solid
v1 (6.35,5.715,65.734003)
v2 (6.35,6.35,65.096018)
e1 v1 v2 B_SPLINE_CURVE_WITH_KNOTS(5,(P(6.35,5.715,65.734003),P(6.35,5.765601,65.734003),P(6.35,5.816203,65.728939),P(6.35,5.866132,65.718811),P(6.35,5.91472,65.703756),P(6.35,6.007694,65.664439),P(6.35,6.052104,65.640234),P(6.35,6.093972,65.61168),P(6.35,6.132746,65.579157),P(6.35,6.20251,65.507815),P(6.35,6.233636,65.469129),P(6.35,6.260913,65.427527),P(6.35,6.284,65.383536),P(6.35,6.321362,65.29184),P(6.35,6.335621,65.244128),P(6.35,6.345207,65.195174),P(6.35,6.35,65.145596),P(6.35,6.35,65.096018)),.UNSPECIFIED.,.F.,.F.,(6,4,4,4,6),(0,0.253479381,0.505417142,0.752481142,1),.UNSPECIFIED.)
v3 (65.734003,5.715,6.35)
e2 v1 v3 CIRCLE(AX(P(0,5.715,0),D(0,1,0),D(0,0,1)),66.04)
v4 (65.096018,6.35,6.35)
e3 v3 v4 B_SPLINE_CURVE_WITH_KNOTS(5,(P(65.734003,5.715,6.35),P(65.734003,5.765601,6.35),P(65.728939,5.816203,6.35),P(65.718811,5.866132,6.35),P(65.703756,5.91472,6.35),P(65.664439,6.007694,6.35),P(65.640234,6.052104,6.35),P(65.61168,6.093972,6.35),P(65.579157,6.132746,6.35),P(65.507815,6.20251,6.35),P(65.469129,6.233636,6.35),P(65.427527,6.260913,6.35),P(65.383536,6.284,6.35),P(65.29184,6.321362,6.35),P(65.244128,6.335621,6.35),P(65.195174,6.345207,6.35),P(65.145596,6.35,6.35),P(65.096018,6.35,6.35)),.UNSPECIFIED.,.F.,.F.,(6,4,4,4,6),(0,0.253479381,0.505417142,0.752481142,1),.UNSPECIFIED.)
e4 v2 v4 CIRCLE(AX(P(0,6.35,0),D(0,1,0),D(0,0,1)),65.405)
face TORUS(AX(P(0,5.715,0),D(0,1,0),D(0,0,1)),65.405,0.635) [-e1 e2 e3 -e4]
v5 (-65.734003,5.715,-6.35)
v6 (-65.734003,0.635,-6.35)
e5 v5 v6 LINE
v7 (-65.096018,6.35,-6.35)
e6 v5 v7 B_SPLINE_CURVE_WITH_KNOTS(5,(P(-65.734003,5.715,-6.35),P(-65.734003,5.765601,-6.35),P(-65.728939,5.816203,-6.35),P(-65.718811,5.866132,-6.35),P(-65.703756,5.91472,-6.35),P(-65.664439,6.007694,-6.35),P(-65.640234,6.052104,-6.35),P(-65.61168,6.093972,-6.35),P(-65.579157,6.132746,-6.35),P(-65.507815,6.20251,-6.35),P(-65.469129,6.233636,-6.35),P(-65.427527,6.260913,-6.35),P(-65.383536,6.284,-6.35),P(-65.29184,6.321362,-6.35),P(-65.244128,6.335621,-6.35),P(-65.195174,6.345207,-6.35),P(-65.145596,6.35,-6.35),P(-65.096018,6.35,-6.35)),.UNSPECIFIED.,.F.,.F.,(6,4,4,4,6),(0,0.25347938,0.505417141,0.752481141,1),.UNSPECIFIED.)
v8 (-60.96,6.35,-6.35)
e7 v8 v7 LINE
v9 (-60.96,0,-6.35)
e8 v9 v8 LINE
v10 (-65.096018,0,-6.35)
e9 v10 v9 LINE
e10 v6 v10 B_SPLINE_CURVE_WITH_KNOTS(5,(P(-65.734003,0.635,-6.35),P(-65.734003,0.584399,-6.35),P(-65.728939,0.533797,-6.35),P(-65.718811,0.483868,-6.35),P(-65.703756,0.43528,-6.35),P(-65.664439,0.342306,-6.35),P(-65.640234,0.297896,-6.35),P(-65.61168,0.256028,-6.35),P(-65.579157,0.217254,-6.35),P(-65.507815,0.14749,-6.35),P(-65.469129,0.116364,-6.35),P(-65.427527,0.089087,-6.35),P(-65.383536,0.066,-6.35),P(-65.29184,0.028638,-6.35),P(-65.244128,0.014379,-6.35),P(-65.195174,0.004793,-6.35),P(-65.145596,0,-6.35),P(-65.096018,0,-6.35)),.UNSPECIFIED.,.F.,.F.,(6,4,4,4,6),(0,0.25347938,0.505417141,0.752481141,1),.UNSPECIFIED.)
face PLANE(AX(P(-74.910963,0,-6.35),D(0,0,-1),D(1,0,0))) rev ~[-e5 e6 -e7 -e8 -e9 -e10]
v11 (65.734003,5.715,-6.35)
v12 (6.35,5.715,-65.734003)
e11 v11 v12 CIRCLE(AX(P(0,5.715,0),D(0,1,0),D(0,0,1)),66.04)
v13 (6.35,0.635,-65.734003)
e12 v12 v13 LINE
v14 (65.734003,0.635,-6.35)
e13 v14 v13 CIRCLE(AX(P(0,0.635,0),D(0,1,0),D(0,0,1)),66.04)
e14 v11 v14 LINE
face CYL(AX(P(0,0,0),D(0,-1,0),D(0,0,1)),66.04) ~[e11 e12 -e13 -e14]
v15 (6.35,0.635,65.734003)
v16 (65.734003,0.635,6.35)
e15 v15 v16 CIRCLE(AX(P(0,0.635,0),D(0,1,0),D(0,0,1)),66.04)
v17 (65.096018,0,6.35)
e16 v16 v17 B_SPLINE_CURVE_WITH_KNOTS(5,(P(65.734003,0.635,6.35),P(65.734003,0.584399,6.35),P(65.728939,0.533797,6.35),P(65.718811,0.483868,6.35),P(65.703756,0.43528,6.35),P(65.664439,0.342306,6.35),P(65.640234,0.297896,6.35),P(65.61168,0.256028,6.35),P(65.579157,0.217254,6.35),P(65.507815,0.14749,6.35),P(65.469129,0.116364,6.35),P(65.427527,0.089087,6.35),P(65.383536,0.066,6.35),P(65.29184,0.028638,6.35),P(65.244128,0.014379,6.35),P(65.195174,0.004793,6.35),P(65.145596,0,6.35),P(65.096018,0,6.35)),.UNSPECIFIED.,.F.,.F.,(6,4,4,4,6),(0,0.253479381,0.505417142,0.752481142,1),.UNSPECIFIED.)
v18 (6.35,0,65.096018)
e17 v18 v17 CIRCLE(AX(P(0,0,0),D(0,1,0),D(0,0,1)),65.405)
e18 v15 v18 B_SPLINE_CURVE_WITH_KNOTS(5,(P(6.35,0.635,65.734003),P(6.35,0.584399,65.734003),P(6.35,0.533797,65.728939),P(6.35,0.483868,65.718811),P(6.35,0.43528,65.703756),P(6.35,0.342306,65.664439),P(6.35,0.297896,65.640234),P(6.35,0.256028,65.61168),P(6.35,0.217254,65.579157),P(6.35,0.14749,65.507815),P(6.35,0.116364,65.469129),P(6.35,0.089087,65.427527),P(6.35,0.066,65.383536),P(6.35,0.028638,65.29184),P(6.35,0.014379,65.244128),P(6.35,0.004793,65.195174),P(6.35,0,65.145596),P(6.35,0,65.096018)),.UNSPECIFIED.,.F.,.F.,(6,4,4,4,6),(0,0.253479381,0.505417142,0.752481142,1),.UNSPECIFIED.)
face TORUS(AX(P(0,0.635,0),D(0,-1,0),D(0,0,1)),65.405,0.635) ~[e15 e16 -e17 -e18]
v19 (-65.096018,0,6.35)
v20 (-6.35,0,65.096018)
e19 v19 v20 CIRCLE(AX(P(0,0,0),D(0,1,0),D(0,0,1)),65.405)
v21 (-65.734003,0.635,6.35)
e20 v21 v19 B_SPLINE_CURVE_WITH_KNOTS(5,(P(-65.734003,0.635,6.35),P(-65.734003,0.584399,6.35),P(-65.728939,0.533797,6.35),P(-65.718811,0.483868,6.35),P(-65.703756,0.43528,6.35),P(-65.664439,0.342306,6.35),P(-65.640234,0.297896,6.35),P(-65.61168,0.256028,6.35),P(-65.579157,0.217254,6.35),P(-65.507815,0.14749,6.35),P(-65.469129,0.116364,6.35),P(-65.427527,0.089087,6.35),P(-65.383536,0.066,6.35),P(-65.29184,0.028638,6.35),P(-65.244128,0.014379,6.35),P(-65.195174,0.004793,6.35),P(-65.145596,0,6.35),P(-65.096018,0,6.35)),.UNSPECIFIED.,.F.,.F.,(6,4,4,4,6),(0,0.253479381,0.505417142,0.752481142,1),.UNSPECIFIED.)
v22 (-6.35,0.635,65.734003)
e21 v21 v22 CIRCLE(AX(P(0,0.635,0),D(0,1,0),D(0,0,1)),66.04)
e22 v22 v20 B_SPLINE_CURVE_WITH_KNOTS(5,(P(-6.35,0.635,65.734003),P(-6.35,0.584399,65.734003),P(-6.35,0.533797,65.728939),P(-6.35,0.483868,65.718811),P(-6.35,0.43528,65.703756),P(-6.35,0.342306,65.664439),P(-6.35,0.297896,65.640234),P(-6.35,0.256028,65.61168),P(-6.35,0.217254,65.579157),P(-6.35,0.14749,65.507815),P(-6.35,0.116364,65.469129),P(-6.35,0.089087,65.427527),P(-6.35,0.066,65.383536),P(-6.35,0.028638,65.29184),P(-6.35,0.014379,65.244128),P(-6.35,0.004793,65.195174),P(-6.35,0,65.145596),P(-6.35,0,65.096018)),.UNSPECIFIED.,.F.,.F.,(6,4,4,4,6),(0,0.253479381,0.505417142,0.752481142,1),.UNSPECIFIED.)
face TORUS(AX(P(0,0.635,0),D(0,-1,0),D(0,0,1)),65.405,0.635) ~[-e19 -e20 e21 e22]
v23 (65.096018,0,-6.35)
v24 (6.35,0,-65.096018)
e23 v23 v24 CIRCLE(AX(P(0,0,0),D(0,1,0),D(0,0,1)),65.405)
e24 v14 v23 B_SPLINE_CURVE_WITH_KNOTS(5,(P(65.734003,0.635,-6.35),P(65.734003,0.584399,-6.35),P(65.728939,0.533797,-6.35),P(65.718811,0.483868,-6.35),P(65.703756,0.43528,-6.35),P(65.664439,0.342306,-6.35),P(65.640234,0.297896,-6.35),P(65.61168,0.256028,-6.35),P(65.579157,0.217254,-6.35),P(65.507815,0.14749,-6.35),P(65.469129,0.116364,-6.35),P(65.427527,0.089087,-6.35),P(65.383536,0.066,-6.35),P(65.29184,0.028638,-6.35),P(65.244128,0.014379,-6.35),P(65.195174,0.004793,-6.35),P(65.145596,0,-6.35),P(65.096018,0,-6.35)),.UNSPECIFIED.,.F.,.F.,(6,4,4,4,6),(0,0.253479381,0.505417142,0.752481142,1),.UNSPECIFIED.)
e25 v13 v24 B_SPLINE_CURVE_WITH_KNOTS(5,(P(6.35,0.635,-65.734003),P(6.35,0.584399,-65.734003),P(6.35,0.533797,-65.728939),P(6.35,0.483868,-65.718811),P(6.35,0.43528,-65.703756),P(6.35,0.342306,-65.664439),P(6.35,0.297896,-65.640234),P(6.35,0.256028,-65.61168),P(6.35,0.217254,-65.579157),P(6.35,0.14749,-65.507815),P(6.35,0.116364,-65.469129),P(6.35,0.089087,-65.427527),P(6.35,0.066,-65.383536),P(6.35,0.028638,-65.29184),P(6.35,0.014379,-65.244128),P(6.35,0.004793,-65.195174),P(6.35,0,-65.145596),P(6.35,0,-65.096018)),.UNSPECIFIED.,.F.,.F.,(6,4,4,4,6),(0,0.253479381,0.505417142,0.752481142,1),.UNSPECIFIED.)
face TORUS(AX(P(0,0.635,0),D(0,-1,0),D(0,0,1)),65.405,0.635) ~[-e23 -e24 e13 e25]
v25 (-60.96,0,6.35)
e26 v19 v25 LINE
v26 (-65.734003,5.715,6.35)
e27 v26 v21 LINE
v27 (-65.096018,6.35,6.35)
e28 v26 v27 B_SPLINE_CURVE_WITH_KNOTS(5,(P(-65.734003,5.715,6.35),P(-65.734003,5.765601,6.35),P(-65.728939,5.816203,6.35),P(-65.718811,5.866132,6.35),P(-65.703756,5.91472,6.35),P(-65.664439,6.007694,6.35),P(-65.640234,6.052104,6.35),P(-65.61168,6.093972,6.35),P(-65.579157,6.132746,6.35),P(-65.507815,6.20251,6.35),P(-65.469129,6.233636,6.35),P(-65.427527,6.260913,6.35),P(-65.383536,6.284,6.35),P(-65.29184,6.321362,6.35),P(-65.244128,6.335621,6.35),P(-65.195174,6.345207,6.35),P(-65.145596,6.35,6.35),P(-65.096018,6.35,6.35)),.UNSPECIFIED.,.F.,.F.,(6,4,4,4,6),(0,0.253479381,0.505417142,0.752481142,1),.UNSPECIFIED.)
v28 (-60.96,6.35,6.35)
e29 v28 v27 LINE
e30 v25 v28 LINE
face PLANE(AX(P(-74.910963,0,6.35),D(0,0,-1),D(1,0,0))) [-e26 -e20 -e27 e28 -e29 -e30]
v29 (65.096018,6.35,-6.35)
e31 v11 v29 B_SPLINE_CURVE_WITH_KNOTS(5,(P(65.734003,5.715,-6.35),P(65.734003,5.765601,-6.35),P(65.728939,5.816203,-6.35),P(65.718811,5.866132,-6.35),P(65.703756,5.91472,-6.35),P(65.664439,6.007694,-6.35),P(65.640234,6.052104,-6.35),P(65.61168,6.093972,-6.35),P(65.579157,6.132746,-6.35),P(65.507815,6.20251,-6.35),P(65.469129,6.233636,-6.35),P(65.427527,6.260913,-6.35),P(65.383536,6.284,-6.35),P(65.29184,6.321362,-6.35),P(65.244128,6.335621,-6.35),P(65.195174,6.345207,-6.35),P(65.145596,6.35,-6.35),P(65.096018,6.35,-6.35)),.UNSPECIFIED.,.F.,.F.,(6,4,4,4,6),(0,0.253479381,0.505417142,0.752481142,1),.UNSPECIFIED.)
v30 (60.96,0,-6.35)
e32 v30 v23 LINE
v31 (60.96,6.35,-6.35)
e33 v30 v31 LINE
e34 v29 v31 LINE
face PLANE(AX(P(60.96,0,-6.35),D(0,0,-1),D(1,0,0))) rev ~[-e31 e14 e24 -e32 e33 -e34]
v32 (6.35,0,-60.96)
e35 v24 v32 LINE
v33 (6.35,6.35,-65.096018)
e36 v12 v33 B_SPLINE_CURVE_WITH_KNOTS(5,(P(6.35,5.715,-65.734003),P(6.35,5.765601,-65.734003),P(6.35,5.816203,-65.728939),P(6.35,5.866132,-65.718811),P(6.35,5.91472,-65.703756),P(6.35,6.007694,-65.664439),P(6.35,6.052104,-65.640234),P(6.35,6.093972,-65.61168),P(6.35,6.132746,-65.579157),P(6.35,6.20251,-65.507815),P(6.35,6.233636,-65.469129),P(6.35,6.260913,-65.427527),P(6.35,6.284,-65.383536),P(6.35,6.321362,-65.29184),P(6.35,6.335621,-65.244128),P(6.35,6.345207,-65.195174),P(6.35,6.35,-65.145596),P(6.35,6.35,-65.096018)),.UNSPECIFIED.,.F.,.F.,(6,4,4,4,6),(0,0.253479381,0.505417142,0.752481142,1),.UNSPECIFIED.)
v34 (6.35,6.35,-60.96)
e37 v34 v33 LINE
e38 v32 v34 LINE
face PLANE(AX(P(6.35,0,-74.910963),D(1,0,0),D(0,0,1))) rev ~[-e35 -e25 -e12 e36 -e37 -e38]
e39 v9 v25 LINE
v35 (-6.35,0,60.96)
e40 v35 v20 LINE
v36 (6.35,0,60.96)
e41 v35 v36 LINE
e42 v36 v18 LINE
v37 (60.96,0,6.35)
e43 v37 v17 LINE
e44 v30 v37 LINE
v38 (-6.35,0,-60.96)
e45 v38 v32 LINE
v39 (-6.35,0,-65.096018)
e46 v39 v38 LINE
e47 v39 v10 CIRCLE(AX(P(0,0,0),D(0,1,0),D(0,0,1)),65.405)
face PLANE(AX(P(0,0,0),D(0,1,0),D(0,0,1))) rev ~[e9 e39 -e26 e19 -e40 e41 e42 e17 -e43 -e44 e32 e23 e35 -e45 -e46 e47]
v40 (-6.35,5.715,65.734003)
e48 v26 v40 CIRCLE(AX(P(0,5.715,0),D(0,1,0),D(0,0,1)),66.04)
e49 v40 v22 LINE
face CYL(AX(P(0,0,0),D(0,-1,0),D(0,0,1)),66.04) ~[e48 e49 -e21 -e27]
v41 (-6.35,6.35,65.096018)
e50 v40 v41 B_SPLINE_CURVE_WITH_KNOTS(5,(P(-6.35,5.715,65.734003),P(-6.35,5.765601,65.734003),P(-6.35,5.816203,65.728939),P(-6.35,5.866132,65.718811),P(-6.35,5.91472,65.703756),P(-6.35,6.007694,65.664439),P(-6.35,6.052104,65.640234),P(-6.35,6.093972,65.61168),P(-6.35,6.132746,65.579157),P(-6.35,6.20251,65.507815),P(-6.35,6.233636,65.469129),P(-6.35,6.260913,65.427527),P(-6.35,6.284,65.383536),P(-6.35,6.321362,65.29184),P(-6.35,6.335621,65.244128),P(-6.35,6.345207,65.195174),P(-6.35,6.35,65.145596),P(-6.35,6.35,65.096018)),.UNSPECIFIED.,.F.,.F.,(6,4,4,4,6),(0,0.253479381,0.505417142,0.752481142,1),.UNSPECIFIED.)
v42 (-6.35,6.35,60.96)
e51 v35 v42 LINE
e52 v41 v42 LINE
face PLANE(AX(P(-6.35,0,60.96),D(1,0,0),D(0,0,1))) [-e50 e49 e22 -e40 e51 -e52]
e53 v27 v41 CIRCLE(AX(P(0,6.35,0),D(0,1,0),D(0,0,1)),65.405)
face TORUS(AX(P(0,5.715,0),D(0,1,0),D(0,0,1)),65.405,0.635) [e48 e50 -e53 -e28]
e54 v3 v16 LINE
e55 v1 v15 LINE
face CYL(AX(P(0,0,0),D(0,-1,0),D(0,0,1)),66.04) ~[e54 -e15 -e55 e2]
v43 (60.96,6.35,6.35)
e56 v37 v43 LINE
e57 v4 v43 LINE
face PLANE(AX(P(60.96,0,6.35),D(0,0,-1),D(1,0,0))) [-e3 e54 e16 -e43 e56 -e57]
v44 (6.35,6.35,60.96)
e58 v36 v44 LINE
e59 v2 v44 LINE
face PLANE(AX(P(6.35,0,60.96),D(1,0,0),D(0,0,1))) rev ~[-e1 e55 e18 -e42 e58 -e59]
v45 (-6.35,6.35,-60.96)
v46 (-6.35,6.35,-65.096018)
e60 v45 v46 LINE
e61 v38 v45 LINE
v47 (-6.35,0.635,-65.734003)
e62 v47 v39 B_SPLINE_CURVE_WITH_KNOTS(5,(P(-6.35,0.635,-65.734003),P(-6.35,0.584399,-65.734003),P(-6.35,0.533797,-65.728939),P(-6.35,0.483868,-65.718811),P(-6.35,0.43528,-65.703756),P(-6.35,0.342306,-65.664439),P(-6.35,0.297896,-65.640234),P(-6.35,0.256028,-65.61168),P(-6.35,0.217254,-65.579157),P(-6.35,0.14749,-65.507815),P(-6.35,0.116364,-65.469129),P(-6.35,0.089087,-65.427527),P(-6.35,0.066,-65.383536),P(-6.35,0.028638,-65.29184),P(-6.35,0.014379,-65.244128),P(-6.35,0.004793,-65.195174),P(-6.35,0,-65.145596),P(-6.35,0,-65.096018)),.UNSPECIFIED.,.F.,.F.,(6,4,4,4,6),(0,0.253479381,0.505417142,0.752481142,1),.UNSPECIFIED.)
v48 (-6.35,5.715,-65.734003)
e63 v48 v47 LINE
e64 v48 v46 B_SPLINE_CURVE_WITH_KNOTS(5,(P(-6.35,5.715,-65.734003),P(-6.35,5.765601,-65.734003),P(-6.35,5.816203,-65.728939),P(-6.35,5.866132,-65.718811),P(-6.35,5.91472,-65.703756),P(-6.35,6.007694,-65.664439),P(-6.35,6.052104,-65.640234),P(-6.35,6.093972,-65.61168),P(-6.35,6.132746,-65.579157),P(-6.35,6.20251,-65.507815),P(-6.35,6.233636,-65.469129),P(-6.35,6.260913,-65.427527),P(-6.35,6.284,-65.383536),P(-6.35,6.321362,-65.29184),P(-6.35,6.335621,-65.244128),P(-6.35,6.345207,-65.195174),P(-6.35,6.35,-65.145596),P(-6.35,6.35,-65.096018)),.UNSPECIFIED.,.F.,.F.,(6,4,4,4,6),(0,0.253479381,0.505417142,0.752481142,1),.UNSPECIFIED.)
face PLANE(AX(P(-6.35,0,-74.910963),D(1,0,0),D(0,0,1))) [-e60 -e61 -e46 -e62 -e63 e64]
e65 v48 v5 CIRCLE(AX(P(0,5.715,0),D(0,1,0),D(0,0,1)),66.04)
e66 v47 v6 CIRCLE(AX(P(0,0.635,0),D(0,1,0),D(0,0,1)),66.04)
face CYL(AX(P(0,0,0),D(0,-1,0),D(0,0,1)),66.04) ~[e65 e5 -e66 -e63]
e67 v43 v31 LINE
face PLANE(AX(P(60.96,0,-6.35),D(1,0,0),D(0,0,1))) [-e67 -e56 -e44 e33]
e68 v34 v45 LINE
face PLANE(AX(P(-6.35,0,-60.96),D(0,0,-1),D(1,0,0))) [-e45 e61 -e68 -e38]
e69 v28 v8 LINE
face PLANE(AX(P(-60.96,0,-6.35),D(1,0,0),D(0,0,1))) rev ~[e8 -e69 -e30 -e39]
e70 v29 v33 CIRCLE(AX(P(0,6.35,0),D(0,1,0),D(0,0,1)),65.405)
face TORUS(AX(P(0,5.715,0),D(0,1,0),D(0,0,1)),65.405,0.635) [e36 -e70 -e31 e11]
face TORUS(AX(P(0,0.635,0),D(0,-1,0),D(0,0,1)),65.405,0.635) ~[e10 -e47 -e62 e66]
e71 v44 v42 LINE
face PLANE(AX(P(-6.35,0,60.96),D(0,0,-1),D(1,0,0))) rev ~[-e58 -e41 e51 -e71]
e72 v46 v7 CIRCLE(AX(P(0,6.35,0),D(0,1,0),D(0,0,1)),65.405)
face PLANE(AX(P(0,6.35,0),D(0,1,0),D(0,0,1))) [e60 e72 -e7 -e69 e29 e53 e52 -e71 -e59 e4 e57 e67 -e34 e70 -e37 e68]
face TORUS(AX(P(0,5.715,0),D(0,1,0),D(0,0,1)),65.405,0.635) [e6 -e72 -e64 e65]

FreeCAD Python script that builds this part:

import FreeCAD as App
import Part
import Sketcher
Q = App.Units.Quantity


def edges_at(feature, points):
    """Names of the edges that pass closest to the given points."""
    edges = feature.Shape.Edges
    near = lambda p: min(range(len(edges)), key=lambda i: edges[i].distToShape(Part.Vertex(*p))[0])
    return sorted({f"Edge{near(p) + 1}" for p in points})


def add_polygon(sketch, points):
    """Adds a closed chain of lines whose ends are joined by coincident constraints."""
    first, n = sketch.GeometryCount, len(points)
    for a, b in zip(points, points[1:] + points[:1]):
        sketch.addGeometry(Part.LineSegment(App.Vector(*a, 0), App.Vector(*b, 0)), False)
    for i in range(n):
        sketch.addConstraint(Sketcher.Constraint("Coincident", first + i, 2, first + (i + 1) % n, 1))

doc = App.newDocument("Part")
params = doc.addObject("Spreadsheet::Sheet", "Params")
for row, (alias, value) in enumerate([
    ("sketch1_diameter", "5.2 in"),
    ("pad1_length", "0.25 in"),
    ("fillet_radius", "0.025 in"),
    ("sketch2_width", "0.5 in"),
], start=1):
    params.set(f"A{row}", alias)
    params.set(f"B{row}", "=" + value)
    params.setAlias(f"B{row}", alias)

body = doc.addObject("PartDesign::Body", "Body")

sketch1 = doc.addObject("Sketcher::SketchObject", "Sketch")
body.addObject(sketch1)
sketch1.AttachmentSupport = (doc.XZ_Plane, [""])
sketch1.MapMode = "FlatFace"
sketch1.addGeometry(Part.Circle(App.Vector(0, 0, 0), App.Vector(0, 0, 1), 66), False)
sketch1.addConstraint([
    Sketcher.Constraint("Coincident", 0, 3, -1, 1),
    Sketcher.Constraint("Diameter", 0, Q("5.2 in")),
])
sketch1.setExpression("Constraints[1]", "Params.sketch1_diameter")
pad1 = doc.addObject("PartDesign::Pad", "Pad")
body.addObject(pad1)
pad1.Profile = sketch1
pad1.setExpression("Length", "Params.pad1_length")
pad1.Reversed = True
doc.recompute()

fillet = doc.addObject("PartDesign::Fillet", "Fillet")
body.addObject(fillet)
fillet.Base = (pad1, edges_at(pad1, [(0, 0, -66.04), (0, 6.35, -66.04)]))
fillet.setExpression("Radius", "Params.fillet_radius")

sketch2 = doc.addObject("Sketcher::SketchObject", "Sketch001")
body.addObject(sketch2)
sketch2.AttachmentSupport = (doc.XZ_Plane, [""])
sketch2.MapMode = "FlatFace"
add_polygon(sketch2, [(61, 6), (61, -6), (75, -6), (75, 6)])
add_polygon(sketch2, [(-6, -61), (-6, -75), (6, -75), (6, -61)])
add_polygon(sketch2, [(-75, 6), (-75, -6), (-61, -6), (-61, 6)])
add_polygon(sketch2, [(-6, 75), (-6, 61), (6, 61), (6, 75)])
sketch2.addConstraint([
    Sketcher.Constraint("Vertical", 0),
    Sketcher.Constraint("Horizontal", 1),
    Sketcher.Constraint("Vertical", 2),
    Sketcher.Constraint("Horizontal", 3),
    Sketcher.Constraint("Vertical", 4),
    Sketcher.Constraint("Horizontal", 5),
    Sketcher.Constraint("Vertical", 6),
    Sketcher.Constraint("Horizontal", 7),
    Sketcher.Constraint("Vertical", 8),
    Sketcher.Constraint("Horizontal", 9),
    Sketcher.Constraint("Vertical", 10),
    Sketcher.Constraint("Horizontal", 11),
    Sketcher.Constraint("Vertical", 12),
    Sketcher.Constraint("Horizontal", 13),
    Sketcher.Constraint("Vertical", 14),
    Sketcher.Constraint("Horizontal", 15),
    Sketcher.Constraint("Symmetric", 2, 2, 8, 2, -1, 1),
    Sketcher.Constraint("Symmetric", 0, 2, 10, 2, -1, 1),
    Sketcher.Constraint("Symmetric", 6, 2, 12, 2, -1, 1),
    Sketcher.Constraint("Symmetric", 4, 2, 14, 2, -1, 1),
    Sketcher.Constraint("Horizontal", 1, 2, 8, 2),
    Sketcher.Constraint("Vertical", 7, 2, 12, 2),
    Sketcher.Constraint("Equal", 15, 0),
    Sketcher.Constraint("Equal", 11, 4),
    Sketcher.Constraint("DistanceX", 5, 1, 5, 2, Q("0.5 in")),
    Sketcher.Constraint("DistanceX", -1, 1, 0, 2, Q("2.4 in")),
    Sketcher.Constraint("DistanceY", 6, 2, -1, 1, Q("2.4 in")),
    Sketcher.Constraint("DistanceX", 1, 1, 1, 2, Q("13.950963 mm")),
])
sketch2.setExpression("Constraints[40]", "Params.sketch2_width")
pocket1 = doc.addObject("PartDesign::Pocket", "Pocket")
body.addObject(pocket1)
pocket1.Profile = sketch2
pocket1.Type = "ThroughAll"

doc.recompute()
